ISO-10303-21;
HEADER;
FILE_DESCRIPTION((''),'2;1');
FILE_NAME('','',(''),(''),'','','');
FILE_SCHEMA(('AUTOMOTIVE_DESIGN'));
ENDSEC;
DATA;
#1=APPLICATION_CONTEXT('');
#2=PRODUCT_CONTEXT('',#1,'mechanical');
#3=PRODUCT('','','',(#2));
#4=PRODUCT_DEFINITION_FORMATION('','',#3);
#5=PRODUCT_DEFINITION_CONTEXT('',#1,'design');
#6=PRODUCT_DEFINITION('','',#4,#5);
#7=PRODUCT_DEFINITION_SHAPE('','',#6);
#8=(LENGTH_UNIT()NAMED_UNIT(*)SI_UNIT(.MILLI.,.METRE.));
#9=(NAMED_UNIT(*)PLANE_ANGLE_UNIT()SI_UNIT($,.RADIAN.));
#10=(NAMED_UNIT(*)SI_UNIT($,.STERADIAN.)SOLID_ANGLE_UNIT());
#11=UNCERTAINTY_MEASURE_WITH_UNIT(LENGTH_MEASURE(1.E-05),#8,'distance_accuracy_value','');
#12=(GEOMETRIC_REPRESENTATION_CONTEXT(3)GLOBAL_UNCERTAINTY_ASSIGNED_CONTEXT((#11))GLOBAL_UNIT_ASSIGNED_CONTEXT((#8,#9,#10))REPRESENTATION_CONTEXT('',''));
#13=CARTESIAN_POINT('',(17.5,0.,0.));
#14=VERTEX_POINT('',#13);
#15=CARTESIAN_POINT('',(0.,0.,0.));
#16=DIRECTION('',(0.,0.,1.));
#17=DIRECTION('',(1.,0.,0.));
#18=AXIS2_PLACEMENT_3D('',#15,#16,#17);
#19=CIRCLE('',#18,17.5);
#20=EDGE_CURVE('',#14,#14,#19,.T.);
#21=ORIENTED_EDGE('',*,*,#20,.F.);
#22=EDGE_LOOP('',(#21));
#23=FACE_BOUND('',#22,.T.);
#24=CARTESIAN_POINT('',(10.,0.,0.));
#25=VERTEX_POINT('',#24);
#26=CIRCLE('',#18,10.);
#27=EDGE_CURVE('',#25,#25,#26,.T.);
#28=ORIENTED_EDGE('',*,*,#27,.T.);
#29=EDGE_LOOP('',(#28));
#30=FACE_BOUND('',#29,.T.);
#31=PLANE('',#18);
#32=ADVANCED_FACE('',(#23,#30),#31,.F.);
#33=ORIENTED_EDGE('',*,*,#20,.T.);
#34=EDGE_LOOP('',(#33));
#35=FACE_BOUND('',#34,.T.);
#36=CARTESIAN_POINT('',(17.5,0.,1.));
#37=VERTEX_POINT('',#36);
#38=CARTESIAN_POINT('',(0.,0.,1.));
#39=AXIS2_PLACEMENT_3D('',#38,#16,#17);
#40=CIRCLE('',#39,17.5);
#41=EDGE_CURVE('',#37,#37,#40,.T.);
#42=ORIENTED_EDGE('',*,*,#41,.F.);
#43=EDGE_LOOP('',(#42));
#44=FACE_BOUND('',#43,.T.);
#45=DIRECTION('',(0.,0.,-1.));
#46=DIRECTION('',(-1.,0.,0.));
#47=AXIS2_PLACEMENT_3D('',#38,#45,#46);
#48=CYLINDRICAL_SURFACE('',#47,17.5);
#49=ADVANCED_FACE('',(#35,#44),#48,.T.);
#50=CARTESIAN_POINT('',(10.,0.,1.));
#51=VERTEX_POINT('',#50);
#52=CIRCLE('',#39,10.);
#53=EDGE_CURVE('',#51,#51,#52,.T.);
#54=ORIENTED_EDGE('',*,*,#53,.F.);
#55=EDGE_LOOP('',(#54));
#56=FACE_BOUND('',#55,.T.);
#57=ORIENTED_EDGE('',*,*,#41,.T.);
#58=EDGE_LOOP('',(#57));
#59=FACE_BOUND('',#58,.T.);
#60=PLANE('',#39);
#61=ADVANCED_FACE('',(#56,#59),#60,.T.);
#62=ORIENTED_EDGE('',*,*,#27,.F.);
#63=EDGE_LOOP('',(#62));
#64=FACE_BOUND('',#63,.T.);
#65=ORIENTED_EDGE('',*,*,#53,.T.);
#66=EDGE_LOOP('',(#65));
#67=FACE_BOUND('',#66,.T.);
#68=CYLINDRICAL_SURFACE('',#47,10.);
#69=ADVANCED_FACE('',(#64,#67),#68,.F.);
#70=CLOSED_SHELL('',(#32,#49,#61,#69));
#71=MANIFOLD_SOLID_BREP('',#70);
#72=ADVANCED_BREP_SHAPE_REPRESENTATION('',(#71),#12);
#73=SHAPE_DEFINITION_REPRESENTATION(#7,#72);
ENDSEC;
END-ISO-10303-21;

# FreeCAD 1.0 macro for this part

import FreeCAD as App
import Part
import Sketcher
from FreeCAD import Vector
Q = App.Units.Quantity

doc = App.newDocument("Part")
body = doc.addObject("PartDesign::Body", "Body")

# Sketch on XY plane
sketch1 = doc.addObject("Sketcher::SketchObject", "Sketch")
body.addObject(sketch1)
sketch1.AttachmentSupport = (doc.XY_Plane, [""])
sketch1.MapMode = "FlatFace"
sketch1.addGeometry(Part.Circle(Vector(0, 0, 0), Vector(0, 0, 1), 17.5), False)
sketch1.addGeometry(Part.Circle(Vector(0, 0, 0), Vector(0, 0, 1), 10), False)
sketch1.addConstraint(Sketcher.Constraint("Coincident", 0, 3, -1, 1))
sketch1.addConstraint(Sketcher.Constraint("Coincident", 1, 3, -1, 1))
sketch1.addConstraint(Sketcher.Constraint("Diameter", 0, Q("35 mm")))
sketch1.addConstraint(Sketcher.Constraint("Diameter", 1, Q("20 mm")))
pad1 = doc.addObject("PartDesign::Pad", "Pad")
body.addObject(pad1)
pad1.Profile = sketch1
pad1.Length = 1

doc.recompute()
